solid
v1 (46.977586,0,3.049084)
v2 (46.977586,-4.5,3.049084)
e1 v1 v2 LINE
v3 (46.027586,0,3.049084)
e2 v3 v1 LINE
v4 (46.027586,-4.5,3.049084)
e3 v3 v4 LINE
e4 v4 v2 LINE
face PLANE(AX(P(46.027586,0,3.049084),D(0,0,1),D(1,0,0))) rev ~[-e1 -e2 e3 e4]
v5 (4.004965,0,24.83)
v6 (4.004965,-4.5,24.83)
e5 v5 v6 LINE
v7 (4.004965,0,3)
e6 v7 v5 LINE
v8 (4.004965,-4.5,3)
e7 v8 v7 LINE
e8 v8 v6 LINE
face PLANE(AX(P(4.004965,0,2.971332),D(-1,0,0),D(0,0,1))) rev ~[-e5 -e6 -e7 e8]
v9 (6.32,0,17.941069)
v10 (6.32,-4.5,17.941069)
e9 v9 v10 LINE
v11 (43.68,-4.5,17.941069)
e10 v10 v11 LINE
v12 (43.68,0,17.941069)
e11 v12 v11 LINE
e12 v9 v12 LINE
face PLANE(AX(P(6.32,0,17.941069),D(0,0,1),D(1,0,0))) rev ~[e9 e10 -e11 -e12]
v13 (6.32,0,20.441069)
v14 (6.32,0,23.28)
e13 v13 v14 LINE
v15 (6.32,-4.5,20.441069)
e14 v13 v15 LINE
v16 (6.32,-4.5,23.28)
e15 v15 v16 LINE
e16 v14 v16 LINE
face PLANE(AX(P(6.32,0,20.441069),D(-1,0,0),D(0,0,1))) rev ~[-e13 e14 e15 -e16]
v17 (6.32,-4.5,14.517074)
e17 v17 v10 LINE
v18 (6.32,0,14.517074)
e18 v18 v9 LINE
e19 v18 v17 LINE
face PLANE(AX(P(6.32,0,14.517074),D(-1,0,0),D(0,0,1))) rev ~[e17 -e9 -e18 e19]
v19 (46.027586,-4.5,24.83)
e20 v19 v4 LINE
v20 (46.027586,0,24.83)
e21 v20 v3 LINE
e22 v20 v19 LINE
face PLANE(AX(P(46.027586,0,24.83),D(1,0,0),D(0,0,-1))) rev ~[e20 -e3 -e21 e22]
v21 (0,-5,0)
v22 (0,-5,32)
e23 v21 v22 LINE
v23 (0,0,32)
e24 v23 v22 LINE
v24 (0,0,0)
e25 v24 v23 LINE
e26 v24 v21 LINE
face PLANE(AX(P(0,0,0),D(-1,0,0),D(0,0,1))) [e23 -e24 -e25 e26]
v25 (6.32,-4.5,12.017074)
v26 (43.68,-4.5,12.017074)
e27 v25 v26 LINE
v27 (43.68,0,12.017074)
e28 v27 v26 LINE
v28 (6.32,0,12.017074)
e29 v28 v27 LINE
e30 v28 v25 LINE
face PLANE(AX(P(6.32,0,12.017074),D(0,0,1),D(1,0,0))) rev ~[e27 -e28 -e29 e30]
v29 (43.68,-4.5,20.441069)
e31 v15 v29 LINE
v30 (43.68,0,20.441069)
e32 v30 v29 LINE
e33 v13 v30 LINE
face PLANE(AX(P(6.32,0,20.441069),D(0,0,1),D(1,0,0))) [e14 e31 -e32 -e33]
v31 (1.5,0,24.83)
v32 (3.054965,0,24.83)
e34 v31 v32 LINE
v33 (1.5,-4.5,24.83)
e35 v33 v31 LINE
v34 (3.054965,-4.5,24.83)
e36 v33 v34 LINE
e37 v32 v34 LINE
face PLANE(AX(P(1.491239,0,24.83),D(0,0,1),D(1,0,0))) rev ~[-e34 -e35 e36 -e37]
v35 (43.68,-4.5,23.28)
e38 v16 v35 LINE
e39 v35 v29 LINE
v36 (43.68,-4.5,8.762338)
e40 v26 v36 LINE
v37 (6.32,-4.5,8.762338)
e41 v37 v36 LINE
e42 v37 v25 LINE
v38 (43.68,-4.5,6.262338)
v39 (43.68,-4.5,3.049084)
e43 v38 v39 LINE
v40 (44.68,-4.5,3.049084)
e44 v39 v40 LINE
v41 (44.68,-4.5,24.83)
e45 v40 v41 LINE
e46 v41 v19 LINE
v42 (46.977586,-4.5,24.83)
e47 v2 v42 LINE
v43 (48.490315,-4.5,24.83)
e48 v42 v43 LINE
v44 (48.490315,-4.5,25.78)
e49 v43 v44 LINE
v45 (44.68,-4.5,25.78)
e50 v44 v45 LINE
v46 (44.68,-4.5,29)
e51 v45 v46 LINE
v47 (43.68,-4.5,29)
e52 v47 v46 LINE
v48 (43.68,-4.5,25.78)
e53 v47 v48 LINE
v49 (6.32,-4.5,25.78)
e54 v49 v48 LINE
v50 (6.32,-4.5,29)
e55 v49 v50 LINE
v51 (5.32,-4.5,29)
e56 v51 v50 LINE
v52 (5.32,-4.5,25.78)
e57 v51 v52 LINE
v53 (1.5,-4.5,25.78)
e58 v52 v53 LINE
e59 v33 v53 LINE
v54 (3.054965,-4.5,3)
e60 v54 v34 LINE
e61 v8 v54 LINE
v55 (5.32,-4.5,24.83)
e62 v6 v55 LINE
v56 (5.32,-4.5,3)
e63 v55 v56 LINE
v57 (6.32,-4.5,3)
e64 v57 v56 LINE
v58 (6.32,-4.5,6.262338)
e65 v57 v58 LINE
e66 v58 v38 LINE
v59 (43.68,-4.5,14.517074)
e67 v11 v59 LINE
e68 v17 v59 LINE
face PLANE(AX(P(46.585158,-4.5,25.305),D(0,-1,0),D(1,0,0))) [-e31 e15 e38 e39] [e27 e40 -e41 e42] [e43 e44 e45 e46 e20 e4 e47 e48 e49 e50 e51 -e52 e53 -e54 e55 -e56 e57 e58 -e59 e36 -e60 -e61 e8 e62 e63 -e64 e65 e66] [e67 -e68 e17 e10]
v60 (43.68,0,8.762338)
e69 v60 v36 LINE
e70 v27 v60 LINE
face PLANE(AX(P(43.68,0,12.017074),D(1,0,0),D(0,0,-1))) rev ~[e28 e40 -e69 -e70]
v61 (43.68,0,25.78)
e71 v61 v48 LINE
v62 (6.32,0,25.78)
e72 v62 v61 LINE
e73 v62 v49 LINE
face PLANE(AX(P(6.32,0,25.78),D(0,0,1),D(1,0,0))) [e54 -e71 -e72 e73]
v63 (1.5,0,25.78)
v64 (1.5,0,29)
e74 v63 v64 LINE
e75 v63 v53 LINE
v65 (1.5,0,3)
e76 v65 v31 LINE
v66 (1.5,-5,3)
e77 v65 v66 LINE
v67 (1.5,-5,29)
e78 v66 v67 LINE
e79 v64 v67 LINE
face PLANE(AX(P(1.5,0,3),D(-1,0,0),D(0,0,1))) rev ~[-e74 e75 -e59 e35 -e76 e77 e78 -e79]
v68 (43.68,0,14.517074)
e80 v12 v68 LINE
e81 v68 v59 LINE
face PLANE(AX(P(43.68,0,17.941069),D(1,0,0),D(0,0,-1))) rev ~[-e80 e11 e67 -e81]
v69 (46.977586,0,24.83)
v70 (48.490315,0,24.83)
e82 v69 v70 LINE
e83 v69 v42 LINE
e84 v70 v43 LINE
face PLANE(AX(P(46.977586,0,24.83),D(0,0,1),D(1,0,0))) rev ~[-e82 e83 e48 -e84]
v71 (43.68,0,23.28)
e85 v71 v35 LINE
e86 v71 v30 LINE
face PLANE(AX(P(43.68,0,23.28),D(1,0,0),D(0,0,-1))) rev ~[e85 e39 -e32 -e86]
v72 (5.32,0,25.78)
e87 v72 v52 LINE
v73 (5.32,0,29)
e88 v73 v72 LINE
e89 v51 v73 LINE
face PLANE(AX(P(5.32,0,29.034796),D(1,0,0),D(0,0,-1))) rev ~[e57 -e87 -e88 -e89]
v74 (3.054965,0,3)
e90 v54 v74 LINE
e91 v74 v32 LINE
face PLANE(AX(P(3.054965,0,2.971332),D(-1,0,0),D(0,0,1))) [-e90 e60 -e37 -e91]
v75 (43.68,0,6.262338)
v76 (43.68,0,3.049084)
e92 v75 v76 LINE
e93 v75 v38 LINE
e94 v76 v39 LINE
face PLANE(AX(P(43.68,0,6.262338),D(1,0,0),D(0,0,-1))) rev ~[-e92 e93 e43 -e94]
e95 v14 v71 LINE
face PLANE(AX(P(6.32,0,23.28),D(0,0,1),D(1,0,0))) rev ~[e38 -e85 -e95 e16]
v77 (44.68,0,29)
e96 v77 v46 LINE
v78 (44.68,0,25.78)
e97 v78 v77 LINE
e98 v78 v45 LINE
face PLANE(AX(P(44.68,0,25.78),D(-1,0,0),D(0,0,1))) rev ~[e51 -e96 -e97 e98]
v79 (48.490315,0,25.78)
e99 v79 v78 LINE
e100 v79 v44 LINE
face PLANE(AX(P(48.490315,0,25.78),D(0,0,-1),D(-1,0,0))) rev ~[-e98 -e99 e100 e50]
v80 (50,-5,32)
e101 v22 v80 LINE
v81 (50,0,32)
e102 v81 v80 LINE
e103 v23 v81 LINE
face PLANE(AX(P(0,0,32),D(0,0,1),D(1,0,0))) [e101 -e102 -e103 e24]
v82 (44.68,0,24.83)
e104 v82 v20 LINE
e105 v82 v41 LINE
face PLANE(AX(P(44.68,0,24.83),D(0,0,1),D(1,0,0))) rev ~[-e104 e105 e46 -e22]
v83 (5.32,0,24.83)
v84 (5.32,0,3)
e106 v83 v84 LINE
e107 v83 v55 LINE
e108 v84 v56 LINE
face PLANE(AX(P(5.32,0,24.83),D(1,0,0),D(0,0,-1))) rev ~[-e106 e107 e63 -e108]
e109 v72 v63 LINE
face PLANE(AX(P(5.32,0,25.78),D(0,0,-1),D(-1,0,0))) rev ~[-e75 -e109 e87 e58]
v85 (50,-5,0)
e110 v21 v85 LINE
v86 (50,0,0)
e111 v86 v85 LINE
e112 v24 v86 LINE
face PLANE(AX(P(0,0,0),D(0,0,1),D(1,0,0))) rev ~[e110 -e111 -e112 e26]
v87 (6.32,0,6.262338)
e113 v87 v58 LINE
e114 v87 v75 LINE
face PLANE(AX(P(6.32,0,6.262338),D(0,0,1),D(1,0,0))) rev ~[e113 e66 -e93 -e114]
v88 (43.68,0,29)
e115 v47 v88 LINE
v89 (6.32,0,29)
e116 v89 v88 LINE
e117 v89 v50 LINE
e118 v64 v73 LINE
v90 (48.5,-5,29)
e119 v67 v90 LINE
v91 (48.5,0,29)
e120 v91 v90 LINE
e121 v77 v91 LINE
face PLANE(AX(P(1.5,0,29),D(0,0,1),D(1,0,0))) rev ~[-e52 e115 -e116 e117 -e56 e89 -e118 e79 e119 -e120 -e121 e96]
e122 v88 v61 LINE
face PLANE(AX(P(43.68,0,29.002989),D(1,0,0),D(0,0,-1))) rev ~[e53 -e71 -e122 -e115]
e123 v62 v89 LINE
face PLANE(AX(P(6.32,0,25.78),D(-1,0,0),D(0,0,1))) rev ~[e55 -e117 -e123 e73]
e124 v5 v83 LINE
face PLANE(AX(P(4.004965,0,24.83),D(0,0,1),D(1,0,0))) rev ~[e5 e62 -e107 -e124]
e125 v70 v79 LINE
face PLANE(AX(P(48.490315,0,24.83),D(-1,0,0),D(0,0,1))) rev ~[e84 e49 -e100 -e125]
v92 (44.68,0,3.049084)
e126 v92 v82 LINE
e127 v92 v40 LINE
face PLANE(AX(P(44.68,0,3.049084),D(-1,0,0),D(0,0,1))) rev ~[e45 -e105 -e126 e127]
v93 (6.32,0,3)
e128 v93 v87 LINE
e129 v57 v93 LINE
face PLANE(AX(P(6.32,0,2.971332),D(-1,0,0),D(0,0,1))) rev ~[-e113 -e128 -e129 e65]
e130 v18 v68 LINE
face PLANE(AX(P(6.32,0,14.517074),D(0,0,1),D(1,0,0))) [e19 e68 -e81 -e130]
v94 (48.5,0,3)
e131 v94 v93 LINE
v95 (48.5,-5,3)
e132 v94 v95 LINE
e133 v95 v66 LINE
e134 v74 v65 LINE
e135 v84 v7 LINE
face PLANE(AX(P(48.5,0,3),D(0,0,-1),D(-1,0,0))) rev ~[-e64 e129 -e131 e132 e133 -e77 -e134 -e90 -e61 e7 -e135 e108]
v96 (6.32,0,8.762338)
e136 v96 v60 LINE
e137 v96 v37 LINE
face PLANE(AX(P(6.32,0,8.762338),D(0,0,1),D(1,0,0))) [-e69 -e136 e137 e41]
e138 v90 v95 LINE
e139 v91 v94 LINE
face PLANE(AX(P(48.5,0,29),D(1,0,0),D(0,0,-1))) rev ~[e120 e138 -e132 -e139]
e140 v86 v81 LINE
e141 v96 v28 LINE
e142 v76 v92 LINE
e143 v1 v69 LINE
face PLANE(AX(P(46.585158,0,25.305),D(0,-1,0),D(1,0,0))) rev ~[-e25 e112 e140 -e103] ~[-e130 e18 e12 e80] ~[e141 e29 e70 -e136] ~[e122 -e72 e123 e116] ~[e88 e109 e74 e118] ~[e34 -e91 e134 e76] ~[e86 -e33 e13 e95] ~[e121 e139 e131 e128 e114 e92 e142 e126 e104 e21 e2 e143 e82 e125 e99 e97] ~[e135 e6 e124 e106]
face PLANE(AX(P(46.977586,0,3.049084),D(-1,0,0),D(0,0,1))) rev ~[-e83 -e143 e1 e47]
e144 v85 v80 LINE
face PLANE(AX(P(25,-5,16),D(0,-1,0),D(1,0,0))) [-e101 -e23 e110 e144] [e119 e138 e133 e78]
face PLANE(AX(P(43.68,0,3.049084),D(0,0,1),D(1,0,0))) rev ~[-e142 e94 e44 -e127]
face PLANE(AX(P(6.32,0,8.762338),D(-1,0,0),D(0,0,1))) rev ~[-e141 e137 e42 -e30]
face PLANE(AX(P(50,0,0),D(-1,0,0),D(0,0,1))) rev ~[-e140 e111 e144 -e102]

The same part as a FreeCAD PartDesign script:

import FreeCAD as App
import Part
import Sketcher

V = App.Vector


def add_polygon(sketch, points):
    """Adds a closed chain of lines whose ends are joined by coincident constraints."""
    first, n = sketch.GeometryCount, len(points)
    for a, b in zip(points, points[1:] + points[:1]):
        sketch.addGeometry(Part.LineSegment(App.Vector(*a, 0), App.Vector(*b, 0)), False)
    for i in range(n):
        sketch.addConstraint(Sketcher.Constraint("Coincident", first + i, 2, first + (i + 1) % n, 1))

doc = App.newDocument("Part")
params = doc.addObject("Spreadsheet::Sheet", "Params")
for row, (alias, value) in enumerate([
    ("sketch1_width", "50 mm"),
    ("sketch1_width2", "47 mm"),
    ("sketch1_height", "32 mm"),
    ("sketch1_height2", "26 mm"),
    ("pad1_length", "5 mm"),
    ("sketch2_width", "1 mm"),
    ("sketch2_width2", "37.36 mm"),
    ("sketch2_width3", "0.95 mm"),
    ("pad2_length", "4.5 mm"),
], start=1):
    params.set(f"A{row}", alias)
    params.set(f"B{row}", "=" + value)
    params.setAlias(f"B{row}", alias)

body = doc.addObject("PartDesign::Body", "Body")

sketch1 = doc.addObject("Sketcher::SketchObject", "Sketch")
body.addObject(sketch1)
sketch1.AttachmentSupport = (doc.XZ_Plane, [""])
sketch1.MapMode = "FlatFace"
add_polygon(sketch1, [(0, 32), (0, 0), (50, 0), (50, 32)])
add_polygon(sketch1, [(1.5, 3), (1.5, 29), (48.5, 29), (48.5, 3)])
sketch1.addConstraint(Sketcher.Constraint("Vertical", 0))
sketch1.addConstraint(Sketcher.Constraint("Horizontal", 1))
sketch1.addConstraint(Sketcher.Constraint("Vertical", 2))
sketch1.addConstraint(Sketcher.Constraint("Horizontal", 3))
sketch1.addConstraint(Sketcher.Constraint("Vertical", 4))
sketch1.addConstraint(Sketcher.Constraint("Horizontal", 5))
sketch1.addConstraint(Sketcher.Constraint("Vertical", 6))
sketch1.addConstraint(Sketcher.Constraint("Horizontal", 7))
sketch1.addConstraint(Sketcher.Constraint("Coincident", 0, 2, -1, 1))
sketch1.addConstraint(Sketcher.Constraint("DistanceX", 1, 1, 1, 2, 50.0))
sketch1.addConstraint(Sketcher.Constraint("DistanceX", 5, 1, 5, 2, 47.0))
sketch1.addConstraint(Sketcher.Constraint("DistanceY", 0, 2, 0, 1, 32.0))
sketch1.addConstraint(Sketcher.Constraint("DistanceY", 4, 1, 4, 2, 26.0))
sketch1.addConstraint(Sketcher.Constraint("DistanceY", -1, 1, 4, 2, 29.0))
sketch1.addConstraint(Sketcher.Constraint("DistanceX", -1, 1, 4, 2, 1.5))
sketch1.setExpression("Constraints[17]", "Params.sketch1_width")
sketch1.setExpression("Constraints[18]", "Params.sketch1_width2")
sketch1.setExpression("Constraints[19]", "Params.sketch1_height")
sketch1.setExpression("Constraints[20]", "Params.sketch1_height2")
pad1 = doc.addObject("PartDesign::Pad", "Pad")
body.addObject(pad1)
pad1.Profile = sketch1
pad1.setExpression("Length", "Params.pad1_length")

sketch2 = doc.addObject("Sketcher::SketchObject", "Sketch001")
body.addObject(sketch2)
sketch2.AttachmentSupport = (doc.XZ_Plane, [""])
sketch2.MapMode = "FlatFace"
add_polygon(sketch2, [(48.490315, 24.83), (48.490315, 25.78), (44.68, 25.78), (44.68, 29.002989), (43.68, 29.002989), (43.68, 25.78), (6.32, 25.78), (6.32, 29.034796), (5.32, 29.034796), (5.32, 25.78), (1.491239, 25.78), (1.491239, 24.83), (3.054965, 24.83), (3.054965, 2.971332), (4.004965, 2.971332), (4.004965, 24.83), (5.32, 24.83), (5.32, 2.971332), (6.32, 2.971332), (6.32, 6.262338), (43.68, 6.262338), (43.68, 3.049084), (44.68, 3.049084), (44.68, 24.83), (46.027586, 24.83), (46.027586, 3.049084), (46.977586, 3.049084), (46.977586, 24.83)])
add_polygon(sketch2, [(6.32, 23.28), (43.68, 23.28), (43.68, 20.441069), (6.32, 20.441069)])
add_polygon(sketch2, [(6.32, 17.941069), (43.68, 17.941069), (43.68, 14.517074), (6.32, 14.517074)])
add_polygon(sketch2, [(6.32, 12.017074), (43.68, 12.017074), (43.68, 8.762338), (6.32, 8.762338)])
sketch2.addConstraint(Sketcher.Constraint("Vertical", 0))
sketch2.addConstraint(Sketcher.Constraint("Horizontal", 1))
sketch2.addConstraint(Sketcher.Constraint("Vertical", 2))
sketch2.addConstraint(Sketcher.Constraint("Horizontal", 3))
sketch2.addConstraint(Sketcher.Constraint("Vertical", 4))
sketch2.addConstraint(Sketcher.Constraint("Horizontal", 5))
sketch2.addConstraint(Sketcher.Constraint("Vertical", 6))
sketch2.addConstraint(Sketcher.Constraint("Horizontal", 7))
sketch2.addConstraint(Sketcher.Constraint("Vertical", 8))
sketch2.addConstraint(Sketcher.Constraint("Horizontal", 9))
sketch2.addConstraint(Sketcher.Constraint("Vertical", 10))
sketch2.addConstraint(Sketcher.Constraint("Horizontal", 11))
sketch2.addConstraint(Sketcher.Constraint("Vertical", 12))
sketch2.addConstraint(Sketcher.Constraint("Horizontal", 13))
sketch2.addConstraint(Sketcher.Constraint("Vertical", 14))
sketch2.addConstraint(Sketcher.Constraint("Horizontal", 15))
sketch2.addConstraint(Sketcher.Constraint("Vertical", 16))
sketch2.addConstraint(Sketcher.Constraint("Horizontal", 17))
sketch2.addConstraint(Sketcher.Constraint("Vertical", 18))
sketch2.addConstraint(Sketcher.Constraint("Horizontal", 19))
sketch2.addConstraint(Sketcher.Constraint("Vertical", 20))
sketch2.addConstraint(Sketcher.Constraint("Horizontal", 21))
sketch2.addConstraint(Sketcher.Constraint("Vertical", 22))
sketch2.addConstraint(Sketcher.Constraint("Horizontal", 23))
sketch2.addConstraint(Sketcher.Constraint("Vertical", 24))
sketch2.addConstraint(Sketcher.Constraint("Horizontal", 25))
sketch2.addConstraint(Sketcher.Constraint("Vertical", 26))
sketch2.addConstraint(Sketcher.Constraint("Horizontal", 27))
sketch2.addConstraint(Sketcher.Constraint("Horizontal", 28))
sketch2.addConstraint(Sketcher.Constraint("Vertical", 29))
sketch2.addConstraint(Sketcher.Constraint("Horizontal", 30))
sketch2.addConstraint(Sketcher.Constraint("Vertical", 31))
sketch2.addConstraint(Sketcher.Constraint("Horizontal", 32))
sketch2.addConstraint(Sketcher.Constraint("Vertical", 33))
sketch2.addConstraint(Sketcher.Constraint("Horizontal", 34))
sketch2.addConstraint(Sketcher.Constraint("Vertical", 35))
sketch2.addConstraint(Sketcher.Constraint("Horizontal", 36))
sketch2.addConstraint(Sketcher.Constraint("Vertical", 37))
sketch2.addConstraint(Sketcher.Constraint("Horizontal", 38))
sketch2.addConstraint(Sketcher.Constraint("Vertical", 39))
sketch2.addConstraint(Sketcher.Constraint("Horizontal", 1, 2, 4, 2))
sketch2.addConstraint(Sketcher.Constraint("Horizontal", 5, 2, 8, 2))
sketch2.addConstraint(Sketcher.Constraint("Horizontal", 11, 2, 14, 2))
sketch2.addConstraint(Sketcher.Constraint("Horizontal", 13, 2, 16, 2))
sketch2.addConstraint(Sketcher.Constraint("Horizontal", 15, 2, 22, 2))
sketch2.addConstraint(Sketcher.Constraint("Horizontal", 21, 2, 24, 2))
sketch2.addConstraint(Sketcher.Constraint("Horizontal", 23, 2, 26, 2))
sketch2.addConstraint(Sketcher.Constraint("Vertical", 8, 2, 15, 2))
sketch2.addConstraint(Sketcher.Constraint("Vertical", 6, 2, 17, 2))
sketch2.addConstraint(Sketcher.Constraint("Vertical", 4, 2, 19, 2))
sketch2.addConstraint(Sketcher.Constraint("Vertical", 2, 2, 21, 2))
sketch2.addConstraint(Sketcher.Constraint("Vertical", 20, 2, 28, 2))
sketch2.addConstraint(Sketcher.Constraint("Vertical", 18, 2, 30, 2))
sketch2.addConstraint(Sketcher.Constraint("Vertical", 29, 2, 32, 2))
sketch2.addConstraint(Sketcher.Constraint("Vertical", 31, 2, 34, 2))
sketch2.addConstraint(Sketcher.Constraint("Vertical", 33, 2, 36, 2))
sketch2.addConstraint(Sketcher.Constraint("Vertical", 35, 2, 38, 2))
sketch2.addConstraint(Sketcher.Constraint("Equal", 3, 7))
sketch2.addConstraint(Sketcher.Constraint("Equal", 13, 25))
sketch2.addConstraint(Sketcher.Constraint("Equal", 25, 0))
sketch2.addConstraint(Sketcher.Constraint("DistanceX", 3, 2, 3, 1, 1.0))
sketch2.addConstraint(Sketcher.Constraint("DistanceX", 5, 2, 5, 1, 37.36))
sketch2.addConstraint(Sketcher.Constraint("DistanceX", 13, 1, 13, 2, 0.95))
sketch2.addConstraint(Sketcher.Constraint("DistanceY", 28, 2, 4, 2, 2.5))
sketch2.addConstraint(Sketcher.Constraint("DistanceY", 32, 2, 29, 2, 2.5))
sketch2.addConstraint(Sketcher.Constraint("DistanceY", 36, 2, 33, 2, 2.5))
sketch2.addConstraint(Sketcher.Constraint("DistanceY", 19, 2, 37, 2, 2.5))
sketch2.addConstraint(Sketcher.Constraint("DistanceY", -1, 1, 0, 2, 25.78))
sketch2.addConstraint(Sketcher.Constraint("DistanceX", -1, 1, 1, 2, 44.68))
sketch2.addConstraint(Sketcher.Constraint("DistanceX", 9, 2, 9, 1, 3.828761))
sketch2.addConstraint(Sketcher.Constraint("DistanceX", 27, 1, 27, 2, 1.512729))
sketch2.addConstraint(Sketcher.Constraint("DistanceY", 2, 1, 2, 2, 3.222989))
sketch2.addConstraint(Sketcher.Constraint("DistanceY", 29, 2, 29, 1, 2.838931))
sketch2.addConstraint(Sketcher.Constraint("DistanceX", 1, 2, 1, 1, 3.810315))
sketch2.addConstraint(Sketcher.Constraint("DistanceX", 11, 1, 11, 2, 1.563726))
sketch2.addConstraint(Sketcher.Constraint("DistanceY", 6, 1, 6, 2, 3.254796))
sketch2.addConstraint(Sketcher.Constraint("DistanceY", 12, 2, 12, 1, 21.858668))
sketch2.addConstraint(Sketcher.Constraint("DistanceY", 18, 1, 18, 2, 3.291006))
sketch2.addConstraint(Sketcher.Constraint("DistanceY", 20, 2, 20, 1, 3.213254))
sketch2.addConstraint(Sketcher.Constraint("DistanceY", 33, 2, 33, 1, 3.423995))
sketch2.setExpression("Constraints[100]", "Params.sketch2_width")
sketch2.setExpression("Constraints[101]", "Params.sketch2_width2")
sketch2.setExpression("Constraints[102]", "Params.sketch2_width3")
pad2 = doc.addObject("PartDesign::Pad", "Pad001")
body.addObject(pad2)
pad2.Profile = sketch2
pad2.setExpression("Length", "Params.pad2_length")

doc.recompute()
